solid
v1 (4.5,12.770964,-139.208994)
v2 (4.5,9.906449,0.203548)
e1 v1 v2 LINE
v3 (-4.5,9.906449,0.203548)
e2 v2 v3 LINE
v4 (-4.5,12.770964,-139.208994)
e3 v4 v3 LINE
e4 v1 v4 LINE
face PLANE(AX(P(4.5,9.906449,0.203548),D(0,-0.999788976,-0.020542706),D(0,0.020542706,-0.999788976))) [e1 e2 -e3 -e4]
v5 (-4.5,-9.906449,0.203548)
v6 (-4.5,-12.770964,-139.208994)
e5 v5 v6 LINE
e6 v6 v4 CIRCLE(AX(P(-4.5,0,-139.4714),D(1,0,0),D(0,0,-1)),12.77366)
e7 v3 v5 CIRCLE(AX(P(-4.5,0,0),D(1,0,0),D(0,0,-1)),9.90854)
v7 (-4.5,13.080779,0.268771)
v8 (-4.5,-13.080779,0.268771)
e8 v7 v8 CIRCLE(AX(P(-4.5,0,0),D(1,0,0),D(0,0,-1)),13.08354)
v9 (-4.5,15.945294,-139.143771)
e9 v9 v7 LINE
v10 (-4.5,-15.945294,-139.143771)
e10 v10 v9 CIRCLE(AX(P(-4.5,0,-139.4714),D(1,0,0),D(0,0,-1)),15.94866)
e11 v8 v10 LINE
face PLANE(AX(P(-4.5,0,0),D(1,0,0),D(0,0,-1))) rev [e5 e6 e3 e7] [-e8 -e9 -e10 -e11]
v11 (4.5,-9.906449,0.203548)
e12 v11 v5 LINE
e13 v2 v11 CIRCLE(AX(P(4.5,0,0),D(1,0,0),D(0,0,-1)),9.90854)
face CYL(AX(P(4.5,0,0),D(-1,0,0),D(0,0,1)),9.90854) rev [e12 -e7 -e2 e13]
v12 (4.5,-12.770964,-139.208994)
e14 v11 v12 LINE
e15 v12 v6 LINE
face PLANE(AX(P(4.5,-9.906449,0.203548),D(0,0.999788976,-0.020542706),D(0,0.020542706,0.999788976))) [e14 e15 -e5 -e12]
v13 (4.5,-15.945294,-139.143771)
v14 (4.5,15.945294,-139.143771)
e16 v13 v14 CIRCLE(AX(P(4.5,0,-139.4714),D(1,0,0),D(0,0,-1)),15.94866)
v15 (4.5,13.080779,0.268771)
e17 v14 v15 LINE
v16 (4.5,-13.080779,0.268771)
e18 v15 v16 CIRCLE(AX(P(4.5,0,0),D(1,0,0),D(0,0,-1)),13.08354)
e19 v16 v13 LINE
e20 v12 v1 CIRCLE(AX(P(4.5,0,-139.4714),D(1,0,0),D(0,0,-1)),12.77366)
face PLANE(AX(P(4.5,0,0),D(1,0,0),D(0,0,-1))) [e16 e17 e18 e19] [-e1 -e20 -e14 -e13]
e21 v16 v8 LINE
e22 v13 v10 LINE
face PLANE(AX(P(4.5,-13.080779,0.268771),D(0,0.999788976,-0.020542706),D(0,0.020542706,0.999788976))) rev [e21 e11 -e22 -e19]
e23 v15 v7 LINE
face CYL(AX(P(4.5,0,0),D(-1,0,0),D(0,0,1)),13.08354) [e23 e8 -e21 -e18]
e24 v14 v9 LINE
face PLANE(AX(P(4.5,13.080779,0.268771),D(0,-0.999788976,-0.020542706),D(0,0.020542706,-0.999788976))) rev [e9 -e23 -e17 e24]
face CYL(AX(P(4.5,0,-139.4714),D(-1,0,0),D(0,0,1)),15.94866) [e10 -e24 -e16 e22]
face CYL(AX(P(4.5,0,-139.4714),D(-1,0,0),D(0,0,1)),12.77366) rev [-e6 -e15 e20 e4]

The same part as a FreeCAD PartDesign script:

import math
import FreeCAD as App
import Part
import Sketcher

doc = App.newDocument("Part")
body = doc.addObject("PartDesign::Body", "Body")

# Sketch on YZ plane
sketch1 = body.newObject("Sketcher::SketchObject", "Sketch")
sketch1.AttachmentSupport = (doc.getObject("YZ_Plane"), [""])
sketch1.MapMode = "FlatFace"
sketch1.addGeometry(Part.LineSegment(App.Vector(16, -139, 0), App.Vector(13, 0, 0)), False)
sketch1.addGeometry(Part.ArcOfCircle(Part.Circle(App.Vector(0, 0, 0), App.Vector(0, 0, 1), 13), math.radians(1), math.radians(179)), False)
sketch1.addGeometry(Part.LineSegment(App.Vector(-13, 0, 0), App.Vector(-16, -139, 0)), False)
sketch1.addGeometry(Part.ArcOfCircle(Part.Circle(App.Vector(0, -139, 0), App.Vector(0, 0, 1), 16), math.radians(179), math.radians(361)), False)
sketch1.addGeometry(Part.LineSegment(App.Vector(10, 0, 0), App.Vector(13, -139, 0)), False)
sketch1.addGeometry(Part.ArcOfCircle(Part.Circle(App.Vector(0, -139, 0), App.Vector(0, 0, 1), 13), math.radians(179), math.radians(361)), False)
sketch1.addGeometry(Part.LineSegment(App.Vector(-13, -139, 0), App.Vector(-10, 0, 0)), False)
sketch1.addGeometry(Part.ArcOfCircle(Part.Circle(App.Vector(0, 0, 0), App.Vector(0, 0, 1), 10), math.radians(1), math.radians(179)), False)
sketch1.addConstraint(Sketcher.Constraint("Tangent", 0, 2, 1, 1))
sketch1.addConstraint(Sketcher.Constraint("Tangent", 1, 2, 2, 1))
sketch1.addConstraint(Sketcher.Constraint("Tangent", 2, 2, 3, 1))
sketch1.addConstraint(Sketcher.Constraint("Tangent", 3, 2, 0, 1))
sketch1.addConstraint(Sketcher.Constraint("Tangent", 4, 2, 5, 2))
sketch1.addConstraint(Sketcher.Constraint("Tangent", 5, 1, 6, 1))
sketch1.addConstraint(Sketcher.Constraint("Tangent", 6, 2, 7, 2))
sketch1.addConstraint(Sketcher.Constraint("Tangent", 7, 1, 4, 1))
sketch1.addConstraint(Sketcher.Constraint("Coincident", 1, 3, -1, 1))
sketch1.addConstraint(Sketcher.Constraint("Coincident", 7, 3, -1, 1))
sketch1.addConstraint(Sketcher.Constraint("Coincident", 5, 3, 3, 3))
sketch1.addConstraint(Sketcher.Constraint("PointOnObject", 3, 3, -2))
sketch1.addConstraint(Sketcher.Constraint("Parallel", 0, 4))
sketch1.addConstraint(Sketcher.Constraint("Radius", 1, 13.08354))
sketch1.addConstraint(Sketcher.Constraint("Radius", 3, 15.94866))
sketch1.addConstraint(Sketcher.Constraint("Radius", 5, 12.77366))
sketch1.addConstraint(Sketcher.Constraint("DistanceY", 3, 3, -1, 1, 139.4714))
pad1 = body.newObject("PartDesign::Pad", "Pad")
pad1.Profile = sketch1
pad1.Length = 9
pad1.Midplane = True

doc.recompute()
